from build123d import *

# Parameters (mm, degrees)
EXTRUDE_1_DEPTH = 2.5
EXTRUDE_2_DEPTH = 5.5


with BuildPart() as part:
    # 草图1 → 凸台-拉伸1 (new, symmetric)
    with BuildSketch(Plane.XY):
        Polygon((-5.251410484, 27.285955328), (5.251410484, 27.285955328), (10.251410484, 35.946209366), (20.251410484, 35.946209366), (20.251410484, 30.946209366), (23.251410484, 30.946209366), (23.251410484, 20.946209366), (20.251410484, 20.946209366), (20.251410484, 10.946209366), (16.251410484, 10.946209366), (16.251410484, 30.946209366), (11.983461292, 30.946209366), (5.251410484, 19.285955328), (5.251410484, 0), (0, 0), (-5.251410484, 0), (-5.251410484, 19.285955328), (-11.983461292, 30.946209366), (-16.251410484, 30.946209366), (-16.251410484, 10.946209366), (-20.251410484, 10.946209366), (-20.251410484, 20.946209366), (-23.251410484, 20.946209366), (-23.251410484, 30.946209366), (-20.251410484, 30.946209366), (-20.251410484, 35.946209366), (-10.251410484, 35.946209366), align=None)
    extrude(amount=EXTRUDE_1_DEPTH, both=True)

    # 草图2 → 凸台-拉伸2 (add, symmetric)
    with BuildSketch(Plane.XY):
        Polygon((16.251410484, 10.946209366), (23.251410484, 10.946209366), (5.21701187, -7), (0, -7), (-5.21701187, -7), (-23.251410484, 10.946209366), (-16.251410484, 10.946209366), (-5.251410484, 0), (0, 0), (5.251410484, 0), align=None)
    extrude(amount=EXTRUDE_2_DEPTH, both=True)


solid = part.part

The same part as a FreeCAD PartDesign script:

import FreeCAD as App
import Part
import Sketcher
Q = App.Units.Quantity


def add_polygon(sketch, points):
    """Adds a closed chain of lines whose ends are joined by coincident constraints."""
    first, n = sketch.GeometryCount, len(points)
    for a, b in zip(points, points[1:] + points[:1]):
        sketch.addGeometry(Part.LineSegment(App.Vector(*a, 0), App.Vector(*b, 0)), False)
    for i in range(n):
        sketch.addConstraint(Sketcher.Constraint("Coincident", first + i, 2, first + (i + 1) % n, 1))

doc = App.newDocument("Part")
params = doc.addObject("Spreadsheet::Sheet", "Params")
for row, (alias, value) in enumerate([
    ("sketch1_width", "10 mm"),
    ("sketch1_width2", "3 mm"),
    ("sketch1_width3", "4 mm"),
    ("sketch1_height", "5 mm"),
    ("sketch1_length", "10 mm"),
    ("pad1_length", "5 mm"),
    ("sketch2_width", "7 mm"),
    ("pad2_length", "11 mm"),
], start=1):
    params.set(f"A{row}", alias)
    params.set(f"B{row}", "=" + value)
    params.setAlias(f"B{row}", alias)

body = doc.addObject("PartDesign::Body", "Body")

sketch1 = body.newObject("Sketcher::SketchObject", "Sketch")
sketch1.AttachmentSupport = (doc.getObject("XY_Plane"), [""])
sketch1.MapMode = "FlatFace"
add_polygon(sketch1, [(5.3, 27.3), (-5.3, 27.3), (-10.3, 35.9), (-20.3, 35.9), (-20.3, 30.9), (-23.3, 30.9), (-23.3, 20.9), (-20.3, 20.9), (-20.3, 10.9), (-16.3, 10.9), (-16.3, 30.9), (-12, 30.9), (-5.3, 19.3), (-5.3, 0), (5.3, 0), (5.3, 19.3), (12, 30.9), (16.3, 30.9), (16.3, 10.9), (20.3, 10.9), (20.3, 20.9), (23.3, 20.9), (23.3, 30.9), (20.3, 30.9), (20.3, 35.9), (10.3, 35.9)])
sketch1.addConstraint([
    Sketcher.Constraint("Horizontal", 0),
    Sketcher.Constraint("Horizontal", 2),
    Sketcher.Constraint("Vertical", 3),
    Sketcher.Constraint("Horizontal", 4),
    Sketcher.Constraint("Vertical", 5),
    Sketcher.Constraint("Horizontal", 6),
    Sketcher.Constraint("Vertical", 7),
    Sketcher.Constraint("Horizontal", 8),
    Sketcher.Constraint("Vertical", 9),
    Sketcher.Constraint("Horizontal", 10),
    Sketcher.Constraint("Vertical", 12),
    Sketcher.Constraint("Horizontal", 13),
    Sketcher.Constraint("Vertical", 14),
    Sketcher.Constraint("Horizontal", 16),
    Sketcher.Constraint("Vertical", 17),
    Sketcher.Constraint("Horizontal", 18),
    Sketcher.Constraint("Vertical", 19),
    Sketcher.Constraint("Horizontal", 20),
    Sketcher.Constraint("Vertical", 21),
    Sketcher.Constraint("Horizontal", 22),
    Sketcher.Constraint("Vertical", 23),
    Sketcher.Constraint("Horizontal", 24),
    Sketcher.Constraint("Symmetric", 12, 2, 13, 2, -1, 1),
    Sketcher.Constraint("Symmetric", 10, 2, 15, 2, -2),
    Sketcher.Constraint("Symmetric", 8, 2, 17, 2, -2),
    Sketcher.Constraint("Symmetric", 6, 2, 19, 2, -2),
    Sketcher.Constraint("Symmetric", 4, 2, 21, 2, -2),
    Sketcher.Constraint("Symmetric", 2, 2, 23, 2, -2),
    Sketcher.Constraint("Parallel", 1, 11),
    Sketcher.Constraint("Parallel", 15, 25),
    Sketcher.Constraint("Horizontal", 4, 2, 9, 2),
    Sketcher.Constraint("Horizontal", 11, 2, 14, 2),
    Sketcher.Constraint("Vertical", 3, 2, 6, 2),
    Sketcher.Constraint("Vertical", 0, 2, 11, 2),
    Sketcher.Constraint("Vertical", 14, 2, 25, 2),
    Sketcher.Constraint("Equal", 24, 5),
    Sketcher.Constraint("Equal", 5, 7),
    Sketcher.Constraint("DistanceX", 2, 2, 2, 1, Q("10 mm")),
    Sketcher.Constraint("DistanceX", 4, 2, 4, 1, Q("3 mm")),
    Sketcher.Constraint("DistanceX", 8, 1, 8, 2, Q("4 mm")),
    Sketcher.Constraint("DistanceY", 3, 2, 3, 1, Q("5 mm")),
    Sketcher.Constraint("Angle", 1, Q("120 deg")),
    Sketcher.Constraint("Distance", 1, Q("10 mm")),
    Sketcher.Constraint("DistanceY", 11, 2, 0, 2, Q("8 mm")),
    Sketcher.Constraint("DistanceX", 0, 2, 0, 1, Q("10.502821 mm")),
    Sketcher.Constraint("DistanceY", 12, 2, 12, 1, Q("19.285955 mm")),
])
sketch1.setExpression("Constraints[63]", "Params.sketch1_width")
sketch1.setExpression("Constraints[64]", "Params.sketch1_width2")
sketch1.setExpression("Constraints[65]", "Params.sketch1_width3")
sketch1.setExpression("Constraints[66]", "Params.sketch1_height")
sketch1.setExpression("Constraints[68]", "Params.sketch1_length")
pad1 = body.newObject("PartDesign::Pad", "Pad")
pad1.Profile = sketch1
pad1.setExpression("Length", "Params.pad1_length")
pad1.Midplane = True

sketch2 = body.newObject("Sketcher::SketchObject", "Sketch001")
sketch2.AttachmentSupport = (doc.getObject("XY_Plane"), [""])
sketch2.MapMode = "FlatFace"
add_polygon(sketch2, [(23, 11), (16, 11), (5, 0), (-5, 0), (-16, 11), (-23, 11), (-5, -7), (5, -7)])
sketch2.addConstraint([
    Sketcher.Constraint("Horizontal", 0),
    Sketcher.Constraint("Horizontal", 2),
    Sketcher.Constraint("Horizontal", 4),
    Sketcher.Constraint("Horizontal", 6),
    Sketcher.Constraint("Symmetric", 1, 2, 2, 2, -1, 1),
    Sketcher.Constraint("Symmetric", 0, 2, 3, 2, -2),
    Sketcher.Constraint("Parallel", 3, 5),
    Sketcher.Constraint("Parallel", 1, 7),
    Sketcher.Constraint("Equal", 0, 4),
    Sketcher.Constraint("DistanceX", 0, 2, 0, 1, Q("7 mm")),
    Sketcher.Constraint("DistanceY", 5, 2, -1, 1, Q("7 mm")),
    Sketcher.Constraint("DistanceX", 1, 2, 0, 2, Q("11 mm")),
    Sketcher.Constraint("DistanceX", 2, 2, 2, 1, Q("10.502821 mm")),
    Sketcher.Constraint("DistanceX", 2, 2, 5, 2, Q("0.034399 mm")),
])
sketch2.setExpression("Constraints[17]", "Params.sketch2_width")
pad2 = body.newObject("PartDesign::Pad", "Pad001")
pad2.Profile = sketch2
pad2.setExpression("Length", "Params.pad2_length")
pad2.Midplane = True

doc.recompute()
